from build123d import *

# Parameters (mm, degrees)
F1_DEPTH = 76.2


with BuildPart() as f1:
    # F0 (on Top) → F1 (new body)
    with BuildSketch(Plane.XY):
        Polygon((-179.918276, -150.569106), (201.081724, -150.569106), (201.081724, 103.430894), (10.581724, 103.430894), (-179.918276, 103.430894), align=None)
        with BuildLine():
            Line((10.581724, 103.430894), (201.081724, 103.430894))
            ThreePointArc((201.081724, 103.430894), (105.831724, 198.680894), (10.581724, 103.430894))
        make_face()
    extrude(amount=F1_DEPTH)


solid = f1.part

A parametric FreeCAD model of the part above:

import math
import FreeCAD as App
import Part
import Sketcher
Q = App.Units.Quantity

doc = App.newDocument("Part")
body = doc.addObject("PartDesign::Body", "Body")

sketch1 = body.newObject("Sketcher::SketchObject", "Sketch")
sketch1.AttachmentSupport = (doc.getObject("XY_Plane"), [""])
sketch1.MapMode = "FlatFace"
sketch1.addGeometry([
    Part.LineSegment(App.Vector(-180, -151, 0), App.Vector(201, -151, 0)),
    Part.LineSegment(App.Vector(201, -151, 0), App.Vector(201, 103, 0)),
    Part.ArcOfCircle(Part.Circle(App.Vector(106, 103, 0), App.Vector(0, 0, 1), 95), math.radians(0), math.radians(180)),
    Part.LineSegment(App.Vector(11, 103, 0), App.Vector(-180, 103, 0)),
    Part.LineSegment(App.Vector(-180, 103, 0), App.Vector(-180, -151, 0)),
], False)
sketch1.addConstraint([
    Sketcher.Constraint("Coincident", 0, 2, 1, 1),
    Sketcher.Constraint("Tangent", 1, 2, 2, 1),
    Sketcher.Constraint("Coincident", 2, 2, 3, 1),
    Sketcher.Constraint("Coincident", 3, 2, 4, 1),
    Sketcher.Constraint("Coincident", 4, 2, 0, 1),
    Sketcher.Constraint("Horizontal", 0),
    Sketcher.Constraint("Vertical", 1),
    Sketcher.Constraint("Horizontal", 3),
    Sketcher.Constraint("Vertical", 4),
    Sketcher.Constraint("Horizontal", 1, 2, 2, 2),
    Sketcher.Constraint("DistanceX", 0, 1, 0, 2, Q("15 in")),
    Sketcher.Constraint("DistanceY", 1, 1, 1, 2, Q("10 in")),
    Sketcher.Constraint("Radius", 2, Q("3.75 in")),
    Sketcher.Constraint("DistanceX", -1, 1, 2, 3, 105.831724),
    Sketcher.Constraint("DistanceY", -1, 1, 2, 3, 103.430894),
])
pad1 = body.newObject("PartDesign::Pad", "Pad")
pad1.Profile = sketch1
pad1.Length = Q("3 in")

doc.recompute()
